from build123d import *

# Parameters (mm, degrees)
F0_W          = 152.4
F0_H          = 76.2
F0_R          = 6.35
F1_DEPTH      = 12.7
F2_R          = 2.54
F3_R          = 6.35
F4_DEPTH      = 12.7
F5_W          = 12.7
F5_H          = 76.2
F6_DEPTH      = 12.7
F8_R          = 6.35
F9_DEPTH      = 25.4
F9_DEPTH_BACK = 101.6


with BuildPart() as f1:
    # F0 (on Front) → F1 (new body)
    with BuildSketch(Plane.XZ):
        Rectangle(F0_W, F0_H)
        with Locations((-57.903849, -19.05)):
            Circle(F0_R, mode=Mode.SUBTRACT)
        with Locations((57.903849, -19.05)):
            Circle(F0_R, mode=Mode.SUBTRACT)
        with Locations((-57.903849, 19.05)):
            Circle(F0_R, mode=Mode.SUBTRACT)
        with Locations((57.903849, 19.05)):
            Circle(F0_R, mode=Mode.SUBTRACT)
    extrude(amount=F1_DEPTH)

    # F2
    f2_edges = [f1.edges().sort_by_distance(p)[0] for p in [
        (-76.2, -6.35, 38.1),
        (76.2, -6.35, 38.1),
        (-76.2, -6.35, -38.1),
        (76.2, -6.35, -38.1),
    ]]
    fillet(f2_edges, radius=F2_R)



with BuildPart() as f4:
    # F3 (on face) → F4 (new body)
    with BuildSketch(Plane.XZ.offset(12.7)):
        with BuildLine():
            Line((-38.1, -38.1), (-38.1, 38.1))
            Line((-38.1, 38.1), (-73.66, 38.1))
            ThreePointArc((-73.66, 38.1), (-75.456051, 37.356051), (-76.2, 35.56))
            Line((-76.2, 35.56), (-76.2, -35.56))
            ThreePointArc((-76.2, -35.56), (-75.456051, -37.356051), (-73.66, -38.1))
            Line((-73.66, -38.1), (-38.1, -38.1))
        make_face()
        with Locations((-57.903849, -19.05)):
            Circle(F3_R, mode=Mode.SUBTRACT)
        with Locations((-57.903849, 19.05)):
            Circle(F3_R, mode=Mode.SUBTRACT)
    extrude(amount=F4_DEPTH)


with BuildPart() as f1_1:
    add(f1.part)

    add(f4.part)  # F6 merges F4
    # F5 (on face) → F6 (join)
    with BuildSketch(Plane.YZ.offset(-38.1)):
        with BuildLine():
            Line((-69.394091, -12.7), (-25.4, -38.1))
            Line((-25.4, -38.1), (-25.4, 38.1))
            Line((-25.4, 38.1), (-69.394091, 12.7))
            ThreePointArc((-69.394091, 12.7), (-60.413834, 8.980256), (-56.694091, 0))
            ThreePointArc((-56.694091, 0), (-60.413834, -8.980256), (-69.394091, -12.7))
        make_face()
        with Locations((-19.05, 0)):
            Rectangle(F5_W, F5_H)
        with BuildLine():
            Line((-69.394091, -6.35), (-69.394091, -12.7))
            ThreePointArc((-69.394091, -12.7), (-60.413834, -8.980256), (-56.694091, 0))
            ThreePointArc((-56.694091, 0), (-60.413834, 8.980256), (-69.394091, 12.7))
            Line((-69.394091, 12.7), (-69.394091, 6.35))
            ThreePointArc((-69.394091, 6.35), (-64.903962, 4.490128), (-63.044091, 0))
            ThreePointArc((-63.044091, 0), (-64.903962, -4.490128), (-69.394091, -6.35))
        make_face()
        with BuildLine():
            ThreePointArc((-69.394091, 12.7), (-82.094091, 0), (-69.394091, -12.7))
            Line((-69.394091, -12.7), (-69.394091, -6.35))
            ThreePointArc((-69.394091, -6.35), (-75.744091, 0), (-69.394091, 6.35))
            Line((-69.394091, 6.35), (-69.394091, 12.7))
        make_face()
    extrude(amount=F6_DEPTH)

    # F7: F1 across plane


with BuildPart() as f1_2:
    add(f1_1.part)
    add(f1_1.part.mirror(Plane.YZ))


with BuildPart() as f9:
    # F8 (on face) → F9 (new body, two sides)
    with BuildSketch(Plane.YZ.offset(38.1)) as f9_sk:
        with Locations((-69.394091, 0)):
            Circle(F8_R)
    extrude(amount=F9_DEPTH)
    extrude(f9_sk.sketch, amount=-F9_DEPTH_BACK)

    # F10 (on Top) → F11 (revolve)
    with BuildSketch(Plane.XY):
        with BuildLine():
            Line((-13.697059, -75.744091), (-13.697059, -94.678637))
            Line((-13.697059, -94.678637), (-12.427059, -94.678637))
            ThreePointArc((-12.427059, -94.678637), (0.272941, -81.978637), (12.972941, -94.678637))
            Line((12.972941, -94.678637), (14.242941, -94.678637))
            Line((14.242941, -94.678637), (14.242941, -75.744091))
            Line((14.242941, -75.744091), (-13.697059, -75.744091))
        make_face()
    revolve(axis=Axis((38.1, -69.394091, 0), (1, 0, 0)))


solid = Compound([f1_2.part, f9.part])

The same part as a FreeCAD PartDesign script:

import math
import FreeCAD as App
import Part
import Sketcher
from FreeCAD import Vector
Q = App.Units.Quantity


def edges_at(feature, points):
    """Names of the edges that pass closest to the given points."""
    edges = feature.Shape.Edges
    near = lambda p: min(range(len(edges)), key=lambda i: edges[i].distToShape(Part.Vertex(*p))[0])
    return sorted({f"Edge{near(p) + 1}" for p in points})

doc = App.newDocument("Part")
params = doc.addObject("Spreadsheet::Sheet", "Params")
for row, (alias, value) in enumerate([
    ("sketch1_diameter", "0.5 in"),
    ("sketch1_width", "6 in"),
    ("sketch1_height", "3 in"),
    ("pad1_length", "0.5 in"),
    ("fillet_radius", "0.1 in"),
    ("sketch2_diameter", "0.5 in"),
    ("sketch2_radius", "0.1 in"),
    ("sketch2_height", "3 in"),
    ("sketch2_width", "1.4 in"),
    ("pad2_length", "0.5 in"),
    ("sketch3_radius", "0.5 in"),
    ("sketch3_height", "3 in"),
    ("sketch3_radius2", "0.2499999 in"),
    ("sketch3_length", "2 in"),
    ("sketch3_width", "0.5 in"),
    ("pad3_length", "0.5 in"),
    ("sketch4_diameter", "0.5 in"),
    ("pad4_length", "1 in"),
    ("pad4_length2", "4 in"),
    ("sketch5_radius", "0.5 in"),
    ("sketch5_width", "1.1 in"),
    ("revolution_angle", "360 deg"),
], start=1):
    params.set(f"A{row}", alias)
    params.set(f"B{row}", "=" + value)
    params.setAlias(f"B{row}", alias)

body = doc.addObject("PartDesign::Body", "Body")

# Sketch on XZ plane
sketch1 = body.newObject("Sketcher::SketchObject", "Sketch")
sketch1.AttachmentSupport = (doc.getObject("XZ_Plane"), [""])
sketch1.MapMode = "FlatFace"
sketch1.addGeometry([
    Part.LineSegment(Vector(-76.2, 38.1, 0), Vector(-76.2, -38.1, 0)),  # 0
    Part.LineSegment(Vector(-76.2, -38.1, 0), Vector(76.2, -38.1, 0)),  # 1
    Part.LineSegment(Vector(76.2, -38.1, 0), Vector(76.2, 38.1, 0)),  # 2
    Part.LineSegment(Vector(76.2, 38.1, 0), Vector(-76.2, 38.1, 0)),  # 3
    Part.Circle(Vector(-57.903849, -19.05, 0), Vector(0, 0, 1), 6.35),  # 4
    Part.Circle(Vector(57.903849, -19.05, 0), Vector(0, 0, 1), 6.35),  # 5
    Part.Circle(Vector(-57.903849, 19.05, 0), Vector(0, 0, 1), 6.35),  # 6
    Part.Circle(Vector(57.903849, 19.05, 0), Vector(0, 0, 1), 6.35),  # 7
], False)
sketch1.addConstraint([
    Sketcher.Constraint("Coincident", 0, 2, 1, 1),
    Sketcher.Constraint("Coincident", 1, 2, 2, 1),
    Sketcher.Constraint("Coincident", 2, 2, 3, 1),
    Sketcher.Constraint("Coincident", 3, 2, 0, 1),
    Sketcher.Constraint("Vertical", 0),
    Sketcher.Constraint("Horizontal", 1),
    Sketcher.Constraint("Vertical", 2),
    Sketcher.Constraint("Horizontal", 3),
    Sketcher.Constraint("Equal", 4, 5),
    Sketcher.Constraint("Equal", 5, 6),
    Sketcher.Constraint("Equal", 6, 7),
    Sketcher.Constraint("Symmetric", 5, 3, 6, 3, -1, 1),
    Sketcher.Constraint("Symmetric", 4, 3, 7, 3, -1, 1),
    Sketcher.Constraint("Symmetric", 0, 2, 2, 2, -1, 1),
    Sketcher.Constraint("Symmetric", 4, 3, 5, 3, -2),
    Sketcher.Constraint("Diameter", 4, Q("0.5 in")),
    Sketcher.Constraint("DistanceX", 1, 1, 1, 2, Q("6 in")),
    Sketcher.Constraint("DistanceY", 0, 2, 0, 1, Q("3 in")),
    Sketcher.Constraint("DistanceY", 4, 3, 6, 3, Q("1.5 in")),
    Sketcher.Constraint("DistanceX", 4, 3, 5, 3, Q("115.807698 mm")),
])
sketch1.setExpression("Constraints[15]", "Params.sketch1_diameter")
sketch1.setExpression("Constraints[16]", "Params.sketch1_width")
sketch1.setExpression("Constraints[17]", "Params.sketch1_height")
pad1 = body.newObject("PartDesign::Pad", "Pad")
pad1.Profile = sketch1
pad1.setExpression("Length", "Params.pad1_length")
doc.recompute()

fillet = body.newObject("PartDesign::Fillet", "Fillet")
fillet.Base = (pad1, edges_at(pad1, [
    (-76.2, -6.35, 38.1),
    (76.2, -6.35, 38.1),
    (-76.2, -6.35, -38.1),
    (76.2, -6.35, -38.1),
]))
fillet.setExpression("Radius", "Params.fillet_radius")
body2 = doc.addObject("PartDesign::Body", "Body001")

# Sketch on XZ plane
sketch2 = body2.newObject("Sketcher::SketchObject", "Sketch001")
sketch2.AttachmentSupport = (doc.getObject("XZ_Plane001"), [""])
sketch2.MapMode = "FlatFace"
sketch2.AttachmentOffset = App.Placement(Vector(0, 0, 0.5 * 25.4), App.Rotation())
sketch2.addGeometry([
    Part.LineSegment(Vector(-38.1, -38.1, 0), Vector(-38.1, 38.1, 0)),  # 0
    Part.LineSegment(Vector(-38.1, 38.1, 0), Vector(-73.66, 38.1, 0)),  # 1
    Part.ArcOfCircle(Part.Circle(Vector(-73.659999, 35.559999, 0), Vector(0, 0, 1), 2.540001), math.radians(90.000017), math.radians(179.999983)),  # 2
    Part.LineSegment(Vector(-76.2, 35.56, 0), Vector(-76.2, -35.56, 0)),  # 3
    Part.ArcOfCircle(Part.Circle(Vector(-73.659999, -35.559999, 0), Vector(0, 0, 1), 2.540001), math.radians(-179.999983), math.radians(-90.000017)),  # 4
    Part.LineSegment(Vector(-73.66, -38.1, 0), Vector(-38.1, -38.1, 0)),  # 5
    Part.Circle(Vector(-57.903849, -19.05, 0), Vector(0, 0, 1), 6.35),  # 6
    Part.Circle(Vector(-57.903849, 19.05, 0), Vector(0, 0, 1), 6.35),  # 7
], False)
sketch2.addConstraint([
    Sketcher.Constraint("Coincident", 0, 2, 1, 1),
    Sketcher.Constraint("Tangent", 1, 2, 2, 1),
    Sketcher.Constraint("Tangent", 2, 2, 3, 1),
    Sketcher.Constraint("Tangent", 3, 2, 4, 1),
    Sketcher.Constraint("Tangent", 4, 2, 5, 1),
    Sketcher.Constraint("Coincident", 5, 2, 0, 1),
    Sketcher.Constraint("Vertical", 0),
    Sketcher.Constraint("Horizontal", 1),
    Sketcher.Constraint("Vertical", 3),
    Sketcher.Constraint("Horizontal", 5),
    Sketcher.Constraint("Equal", 2, 4),
    Sketcher.Constraint("Equal", 6, 7),
    Sketcher.Constraint("Symmetric", 6, 3, 7, 3, -1),
    Sketcher.Constraint("Diameter", 6, Q("0.5 in")),
    Sketcher.Constraint("Radius", 2, Q("0.1 in")),
    Sketcher.Constraint("DistanceY", 0, 1, 0, 2, Q("3 in")),
    Sketcher.Constraint("DistanceX", 1, 2, 1, 1, Q("1.4 in")),
    Sketcher.Constraint("DistanceX", 2, 2, -1, 1, Q("3 in")),
    Sketcher.Constraint("DistanceY", -1, 1, 2, 3, Q("1.4 in")),
    Sketcher.Constraint("DistanceY", 6, 3, 7, 3, Q("1.5 in")),
    Sketcher.Constraint("DistanceX", 6, 3, -1, 1, Q("57.903849 mm")),
])
sketch2.setExpression("Constraints[13]", "Params.sketch2_diameter")
sketch2.setExpression("Constraints[14]", "Params.sketch2_radius")
sketch2.setExpression("Constraints[15]", "Params.sketch2_height")
sketch2.setExpression("Constraints[16]", "Params.sketch2_width")
pad2 = body2.newObject("PartDesign::Pad", "Pad001")
pad2.Profile = sketch2
pad2.setExpression("Length", "Params.pad2_length")
doc.recompute()

boolean = body.newObject("PartDesign::Boolean", "Boolean")
boolean.Type = "Fuse"
boolean.addObjects([body2])

# Sketch on YZ plane
sketch3 = body.newObject("Sketcher::SketchObject", "Sketch002")
sketch3.AttachmentSupport = (doc.getObject("YZ_Plane"), [""])
sketch3.MapMode = "FlatFace"
sketch3.AttachmentOffset = App.Placement(Vector(0, 0, -1.5 * 25.4), App.Rotation())
sketch3.addGeometry([
    Part.LineSegment(Vector(-69.394091, -12.7, 0), Vector(-25.4, -38.1, 0)),  # 0
    Part.LineSegment(Vector(-25.4, -38.1, 0), Vector(-12.7, -38.1, 0)),  # 1
    Part.LineSegment(Vector(-12.7, -38.1, 0), Vector(-12.7, 38.1, 0)),  # 2
    Part.LineSegment(Vector(-12.7, 38.1, 0), Vector(-25.4, 38.1, 0)),  # 3
    Part.LineSegment(Vector(-25.4, 38.1, 0), Vector(-69.394091, 12.7, 0)),  # 4
    Part.ArcOfCircle(Part.Circle(Vector(-69.394091, 0, 0), Vector(0, 0, 1), 12.7), math.radians(90), math.radians(270)),  # 5
    Part.ArcOfCircle(Part.Circle(Vector(-69.39409, 0.000002, 0), Vector(0, 0, 1), 6.349998), math.radians(-0.000014), math.radians(90.000014)),  # 6
    Part.ArcOfCircle(Part.Circle(Vector(-69.39409, -0.000002, 0), Vector(0, 0, 1), 6.349998), math.radians(-90.000014), math.radians(0.000014)),  # 7
    Part.ArcOfCircle(Part.Circle(Vector(-69.394091, 0, 0), Vector(0, 0, 1), 6.35), math.radians(90), math.radians(270)),  # 8
], False)
sketch3.addConstraint([
    Sketcher.Constraint("Coincident", 0, 2, 1, 1),
    Sketcher.Constraint("Coincident", 1, 2, 2, 1),
    Sketcher.Constraint("Coincident", 2, 2, 3, 1),
    Sketcher.Constraint("Coincident", 3, 2, 4, 1),
    Sketcher.Constraint("Coincident", 4, 2, 5, 1),
    Sketcher.Constraint("Coincident", 5, 2, 0, 1),
    Sketcher.Constraint("Tangent", 6, 1, 7, 2),
    Sketcher.Constraint("Tangent", 7, 1, 8, 2),
    Sketcher.Constraint("Tangent", 8, 1, 6, 2),
    Sketcher.Constraint("Horizontal", 1),
    Sketcher.Constraint("Vertical", 2),
    Sketcher.Constraint("Horizontal", 3),
    Sketcher.Constraint("Coincident", 6, 3, 5, 3),
    Sketcher.Constraint("Symmetric", 0, 2, 3, 2, -1),
    Sketcher.Constraint("Symmetric", 4, 2, 5, 2, -1),
    Sketcher.Constraint("PointOnObject", 6, 1, -1),
    Sketcher.Constraint("Vertical", 8, 3, 4, 2),
    Sketcher.Constraint("Vertical", 5, 2, 7, 1),
    Sketcher.Constraint("Vertical", 7, 1, 8, 1),
    Sketcher.Constraint("Radius", 5, Q("0.5 in")),
    Sketcher.Constraint("DistanceY", 2, 1, 2, 2, Q("3 in")),
    Sketcher.Constraint("Radius", 6, Q("0.2499999 in")),
    Sketcher.Constraint("Distance", 0, Q("2 in")),
    Sketcher.Constraint("DistanceX", 1, 1, 1, 2, Q("0.5 in")),
    Sketcher.Constraint("DistanceX", 0, 2, -1, 1, Q("1 in")),
])
sketch3.setExpression("Constraints[19]", "Params.sketch3_radius")
sketch3.setExpression("Constraints[20]", "Params.sketch3_height")
sketch3.setExpression("Constraints[21]", "Params.sketch3_radius2")
sketch3.setExpression("Constraints[22]", "Params.sketch3_length")
sketch3.setExpression("Constraints[23]", "Params.sketch3_width")
pad3 = body.newObject("PartDesign::Pad", "Pad002")
pad3.Profile = sketch3
pad3.setExpression("Length", "Params.pad3_length")
body3 = doc.addObject("PartDesign::Body", "Body002")
doc.recompute()

body3.BaseFeature = body
doc.recompute()

mirroring = doc.addObject("Part::Mirroring", "Mirroring")
mirroring.Source = body
mirroring.Base = Vector(0, 0, 0)
mirroring.Normal = Vector(1, 0, 0)
body4 = doc.addObject("PartDesign::Body", "Body003")
body4.BaseFeature = mirroring
boolean2 = body3.newObject("PartDesign::Boolean", "Boolean001")
boolean2.Type = "Fuse"
boolean2.addObjects([body4])
doc.recompute()
body5 = doc.addObject("PartDesign::Body", "Body004")

# Sketch on YZ plane
sketch4 = body5.newObject("Sketcher::SketchObject", "Sketch003")
sketch4.AttachmentSupport = (doc.getObject("YZ_Plane004"), [""])
sketch4.MapMode = "FlatFace"
sketch4.AttachmentOffset = App.Placement(Vector(0, 0, 1.5 * 25.4), App.Rotation())
sketch4.addGeometry(Part.Circle(Vector(-69.394091, 0, 0), Vector(0, 0, 1), 6.35), False)
sketch4.addConstraint([
    Sketcher.Constraint("PointOnObject", 0, 3, -1),
    Sketcher.Constraint("Diameter", 0, Q("0.5 in")),
    Sketcher.Constraint("DistanceX", 0, 3, -1, 1, Q("69.394091 mm")),
])
sketch4.setExpression("Constraints[1]", "Params.sketch4_diameter")
pad4 = body5.newObject("PartDesign::Pad", "Pad003")
pad4.Profile = sketch4
pad4.Type = "TwoLengths"
pad4.setExpression("Length", "Params.pad4_length")
pad4.setExpression("Length2", "Params.pad4_length2")

# Sketch on XY plane
sketch5 = body5.newObject("Sketcher::SketchObject", "Sketch004")
sketch5.AttachmentSupport = (doc.getObject("XY_Plane004"), [""])
sketch5.MapMode = "FlatFace"
sketch5.addGeometry([
    Part.LineSegment(Vector(-13.697059, -75.744091, 0), Vector(-13.697059, -94.678637, 0)),  # 0
    Part.LineSegment(Vector(-13.697059, -94.678637, 0), Vector(-12.427059, -94.678637, 0)),  # 1
    Part.ArcOfCircle(Part.Circle(Vector(0.272941, -94.678637, 0), Vector(0, 0, 1), 12.7), math.radians(0), math.radians(180)),  # 2
    Part.LineSegment(Vector(12.972941, -94.678637, 0), Vector(14.242941, -94.678637, 0)),  # 3
    Part.LineSegment(Vector(14.242941, -94.678637, 0), Vector(14.242941, -75.744091, 0)),  # 4
    Part.LineSegment(Vector(14.242941, -75.744091, 0), Vector(-13.697059, -75.744091, 0)),  # 5
], False)
sketch5.addGeometry(Part.LineSegment(Vector(-13.697059, -69.394091, 0), Vector(14.242941, -69.394091, 0)), True)  # axis
sketch5.addConstraint([
    Sketcher.Constraint("Coincident", 0, 2, 1, 1),
    Sketcher.Constraint("Coincident", 1, 2, 2, 2),
    Sketcher.Constraint("Coincident", 2, 1, 3, 1),
    Sketcher.Constraint("Coincident", 3, 2, 4, 1),
    Sketcher.Constraint("Coincident", 4, 2, 5, 1),
    Sketcher.Constraint("Coincident", 5, 2, 0, 1),
    Sketcher.Constraint("Vertical", 0),
    Sketcher.Constraint("Horizontal", 1),
    Sketcher.Constraint("Horizontal", 3),
    Sketcher.Constraint("Vertical", 4),
    Sketcher.Constraint("Horizontal", 5),
    Sketcher.Constraint("Horizontal", 6),
    Sketcher.Constraint("Horizontal", 2, 3, 0, 2),
    Sketcher.Constraint("Horizontal", 1, 2, 2, 1),
    Sketcher.Constraint("Vertical", 5, 2, 6, 1),
    Sketcher.Constraint("Vertical", 4, 2, 6, 2),
    Sketcher.Constraint("Equal", 1, 3),
    Sketcher.Constraint("Radius", 2, Q("0.5 in")),
    Sketcher.Constraint("DistanceX", 5, 2, 5, 1, Q("1.1 in")),
    Sketcher.Constraint("DistanceY", 5, 2, 6, 1, Q("0.25 in")),
    Sketcher.Constraint("DistanceY", 0, 2, 0, 1, Q("18.934546 mm")),
    Sketcher.Constraint("DistanceX", -1, 1, 2, 3, Q("0.272941 mm")),
    Sketcher.Constraint("DistanceY", 4, 2, -1, 1, Q("75.744091 mm")),
])
sketch5.setExpression("Constraints[17]", "Params.sketch5_radius")
sketch5.setExpression("Constraints[18]", "Params.sketch5_width")
revolution = body5.newObject("PartDesign::Revolution", "Revolution")
revolution.Profile = sketch5
revolution.ReferenceAxis = (sketch5, ["Axis0"])
revolution.setExpression("Angle", "Params.revolution_angle")
mirroring.Visibility = False

doc.recompute()
